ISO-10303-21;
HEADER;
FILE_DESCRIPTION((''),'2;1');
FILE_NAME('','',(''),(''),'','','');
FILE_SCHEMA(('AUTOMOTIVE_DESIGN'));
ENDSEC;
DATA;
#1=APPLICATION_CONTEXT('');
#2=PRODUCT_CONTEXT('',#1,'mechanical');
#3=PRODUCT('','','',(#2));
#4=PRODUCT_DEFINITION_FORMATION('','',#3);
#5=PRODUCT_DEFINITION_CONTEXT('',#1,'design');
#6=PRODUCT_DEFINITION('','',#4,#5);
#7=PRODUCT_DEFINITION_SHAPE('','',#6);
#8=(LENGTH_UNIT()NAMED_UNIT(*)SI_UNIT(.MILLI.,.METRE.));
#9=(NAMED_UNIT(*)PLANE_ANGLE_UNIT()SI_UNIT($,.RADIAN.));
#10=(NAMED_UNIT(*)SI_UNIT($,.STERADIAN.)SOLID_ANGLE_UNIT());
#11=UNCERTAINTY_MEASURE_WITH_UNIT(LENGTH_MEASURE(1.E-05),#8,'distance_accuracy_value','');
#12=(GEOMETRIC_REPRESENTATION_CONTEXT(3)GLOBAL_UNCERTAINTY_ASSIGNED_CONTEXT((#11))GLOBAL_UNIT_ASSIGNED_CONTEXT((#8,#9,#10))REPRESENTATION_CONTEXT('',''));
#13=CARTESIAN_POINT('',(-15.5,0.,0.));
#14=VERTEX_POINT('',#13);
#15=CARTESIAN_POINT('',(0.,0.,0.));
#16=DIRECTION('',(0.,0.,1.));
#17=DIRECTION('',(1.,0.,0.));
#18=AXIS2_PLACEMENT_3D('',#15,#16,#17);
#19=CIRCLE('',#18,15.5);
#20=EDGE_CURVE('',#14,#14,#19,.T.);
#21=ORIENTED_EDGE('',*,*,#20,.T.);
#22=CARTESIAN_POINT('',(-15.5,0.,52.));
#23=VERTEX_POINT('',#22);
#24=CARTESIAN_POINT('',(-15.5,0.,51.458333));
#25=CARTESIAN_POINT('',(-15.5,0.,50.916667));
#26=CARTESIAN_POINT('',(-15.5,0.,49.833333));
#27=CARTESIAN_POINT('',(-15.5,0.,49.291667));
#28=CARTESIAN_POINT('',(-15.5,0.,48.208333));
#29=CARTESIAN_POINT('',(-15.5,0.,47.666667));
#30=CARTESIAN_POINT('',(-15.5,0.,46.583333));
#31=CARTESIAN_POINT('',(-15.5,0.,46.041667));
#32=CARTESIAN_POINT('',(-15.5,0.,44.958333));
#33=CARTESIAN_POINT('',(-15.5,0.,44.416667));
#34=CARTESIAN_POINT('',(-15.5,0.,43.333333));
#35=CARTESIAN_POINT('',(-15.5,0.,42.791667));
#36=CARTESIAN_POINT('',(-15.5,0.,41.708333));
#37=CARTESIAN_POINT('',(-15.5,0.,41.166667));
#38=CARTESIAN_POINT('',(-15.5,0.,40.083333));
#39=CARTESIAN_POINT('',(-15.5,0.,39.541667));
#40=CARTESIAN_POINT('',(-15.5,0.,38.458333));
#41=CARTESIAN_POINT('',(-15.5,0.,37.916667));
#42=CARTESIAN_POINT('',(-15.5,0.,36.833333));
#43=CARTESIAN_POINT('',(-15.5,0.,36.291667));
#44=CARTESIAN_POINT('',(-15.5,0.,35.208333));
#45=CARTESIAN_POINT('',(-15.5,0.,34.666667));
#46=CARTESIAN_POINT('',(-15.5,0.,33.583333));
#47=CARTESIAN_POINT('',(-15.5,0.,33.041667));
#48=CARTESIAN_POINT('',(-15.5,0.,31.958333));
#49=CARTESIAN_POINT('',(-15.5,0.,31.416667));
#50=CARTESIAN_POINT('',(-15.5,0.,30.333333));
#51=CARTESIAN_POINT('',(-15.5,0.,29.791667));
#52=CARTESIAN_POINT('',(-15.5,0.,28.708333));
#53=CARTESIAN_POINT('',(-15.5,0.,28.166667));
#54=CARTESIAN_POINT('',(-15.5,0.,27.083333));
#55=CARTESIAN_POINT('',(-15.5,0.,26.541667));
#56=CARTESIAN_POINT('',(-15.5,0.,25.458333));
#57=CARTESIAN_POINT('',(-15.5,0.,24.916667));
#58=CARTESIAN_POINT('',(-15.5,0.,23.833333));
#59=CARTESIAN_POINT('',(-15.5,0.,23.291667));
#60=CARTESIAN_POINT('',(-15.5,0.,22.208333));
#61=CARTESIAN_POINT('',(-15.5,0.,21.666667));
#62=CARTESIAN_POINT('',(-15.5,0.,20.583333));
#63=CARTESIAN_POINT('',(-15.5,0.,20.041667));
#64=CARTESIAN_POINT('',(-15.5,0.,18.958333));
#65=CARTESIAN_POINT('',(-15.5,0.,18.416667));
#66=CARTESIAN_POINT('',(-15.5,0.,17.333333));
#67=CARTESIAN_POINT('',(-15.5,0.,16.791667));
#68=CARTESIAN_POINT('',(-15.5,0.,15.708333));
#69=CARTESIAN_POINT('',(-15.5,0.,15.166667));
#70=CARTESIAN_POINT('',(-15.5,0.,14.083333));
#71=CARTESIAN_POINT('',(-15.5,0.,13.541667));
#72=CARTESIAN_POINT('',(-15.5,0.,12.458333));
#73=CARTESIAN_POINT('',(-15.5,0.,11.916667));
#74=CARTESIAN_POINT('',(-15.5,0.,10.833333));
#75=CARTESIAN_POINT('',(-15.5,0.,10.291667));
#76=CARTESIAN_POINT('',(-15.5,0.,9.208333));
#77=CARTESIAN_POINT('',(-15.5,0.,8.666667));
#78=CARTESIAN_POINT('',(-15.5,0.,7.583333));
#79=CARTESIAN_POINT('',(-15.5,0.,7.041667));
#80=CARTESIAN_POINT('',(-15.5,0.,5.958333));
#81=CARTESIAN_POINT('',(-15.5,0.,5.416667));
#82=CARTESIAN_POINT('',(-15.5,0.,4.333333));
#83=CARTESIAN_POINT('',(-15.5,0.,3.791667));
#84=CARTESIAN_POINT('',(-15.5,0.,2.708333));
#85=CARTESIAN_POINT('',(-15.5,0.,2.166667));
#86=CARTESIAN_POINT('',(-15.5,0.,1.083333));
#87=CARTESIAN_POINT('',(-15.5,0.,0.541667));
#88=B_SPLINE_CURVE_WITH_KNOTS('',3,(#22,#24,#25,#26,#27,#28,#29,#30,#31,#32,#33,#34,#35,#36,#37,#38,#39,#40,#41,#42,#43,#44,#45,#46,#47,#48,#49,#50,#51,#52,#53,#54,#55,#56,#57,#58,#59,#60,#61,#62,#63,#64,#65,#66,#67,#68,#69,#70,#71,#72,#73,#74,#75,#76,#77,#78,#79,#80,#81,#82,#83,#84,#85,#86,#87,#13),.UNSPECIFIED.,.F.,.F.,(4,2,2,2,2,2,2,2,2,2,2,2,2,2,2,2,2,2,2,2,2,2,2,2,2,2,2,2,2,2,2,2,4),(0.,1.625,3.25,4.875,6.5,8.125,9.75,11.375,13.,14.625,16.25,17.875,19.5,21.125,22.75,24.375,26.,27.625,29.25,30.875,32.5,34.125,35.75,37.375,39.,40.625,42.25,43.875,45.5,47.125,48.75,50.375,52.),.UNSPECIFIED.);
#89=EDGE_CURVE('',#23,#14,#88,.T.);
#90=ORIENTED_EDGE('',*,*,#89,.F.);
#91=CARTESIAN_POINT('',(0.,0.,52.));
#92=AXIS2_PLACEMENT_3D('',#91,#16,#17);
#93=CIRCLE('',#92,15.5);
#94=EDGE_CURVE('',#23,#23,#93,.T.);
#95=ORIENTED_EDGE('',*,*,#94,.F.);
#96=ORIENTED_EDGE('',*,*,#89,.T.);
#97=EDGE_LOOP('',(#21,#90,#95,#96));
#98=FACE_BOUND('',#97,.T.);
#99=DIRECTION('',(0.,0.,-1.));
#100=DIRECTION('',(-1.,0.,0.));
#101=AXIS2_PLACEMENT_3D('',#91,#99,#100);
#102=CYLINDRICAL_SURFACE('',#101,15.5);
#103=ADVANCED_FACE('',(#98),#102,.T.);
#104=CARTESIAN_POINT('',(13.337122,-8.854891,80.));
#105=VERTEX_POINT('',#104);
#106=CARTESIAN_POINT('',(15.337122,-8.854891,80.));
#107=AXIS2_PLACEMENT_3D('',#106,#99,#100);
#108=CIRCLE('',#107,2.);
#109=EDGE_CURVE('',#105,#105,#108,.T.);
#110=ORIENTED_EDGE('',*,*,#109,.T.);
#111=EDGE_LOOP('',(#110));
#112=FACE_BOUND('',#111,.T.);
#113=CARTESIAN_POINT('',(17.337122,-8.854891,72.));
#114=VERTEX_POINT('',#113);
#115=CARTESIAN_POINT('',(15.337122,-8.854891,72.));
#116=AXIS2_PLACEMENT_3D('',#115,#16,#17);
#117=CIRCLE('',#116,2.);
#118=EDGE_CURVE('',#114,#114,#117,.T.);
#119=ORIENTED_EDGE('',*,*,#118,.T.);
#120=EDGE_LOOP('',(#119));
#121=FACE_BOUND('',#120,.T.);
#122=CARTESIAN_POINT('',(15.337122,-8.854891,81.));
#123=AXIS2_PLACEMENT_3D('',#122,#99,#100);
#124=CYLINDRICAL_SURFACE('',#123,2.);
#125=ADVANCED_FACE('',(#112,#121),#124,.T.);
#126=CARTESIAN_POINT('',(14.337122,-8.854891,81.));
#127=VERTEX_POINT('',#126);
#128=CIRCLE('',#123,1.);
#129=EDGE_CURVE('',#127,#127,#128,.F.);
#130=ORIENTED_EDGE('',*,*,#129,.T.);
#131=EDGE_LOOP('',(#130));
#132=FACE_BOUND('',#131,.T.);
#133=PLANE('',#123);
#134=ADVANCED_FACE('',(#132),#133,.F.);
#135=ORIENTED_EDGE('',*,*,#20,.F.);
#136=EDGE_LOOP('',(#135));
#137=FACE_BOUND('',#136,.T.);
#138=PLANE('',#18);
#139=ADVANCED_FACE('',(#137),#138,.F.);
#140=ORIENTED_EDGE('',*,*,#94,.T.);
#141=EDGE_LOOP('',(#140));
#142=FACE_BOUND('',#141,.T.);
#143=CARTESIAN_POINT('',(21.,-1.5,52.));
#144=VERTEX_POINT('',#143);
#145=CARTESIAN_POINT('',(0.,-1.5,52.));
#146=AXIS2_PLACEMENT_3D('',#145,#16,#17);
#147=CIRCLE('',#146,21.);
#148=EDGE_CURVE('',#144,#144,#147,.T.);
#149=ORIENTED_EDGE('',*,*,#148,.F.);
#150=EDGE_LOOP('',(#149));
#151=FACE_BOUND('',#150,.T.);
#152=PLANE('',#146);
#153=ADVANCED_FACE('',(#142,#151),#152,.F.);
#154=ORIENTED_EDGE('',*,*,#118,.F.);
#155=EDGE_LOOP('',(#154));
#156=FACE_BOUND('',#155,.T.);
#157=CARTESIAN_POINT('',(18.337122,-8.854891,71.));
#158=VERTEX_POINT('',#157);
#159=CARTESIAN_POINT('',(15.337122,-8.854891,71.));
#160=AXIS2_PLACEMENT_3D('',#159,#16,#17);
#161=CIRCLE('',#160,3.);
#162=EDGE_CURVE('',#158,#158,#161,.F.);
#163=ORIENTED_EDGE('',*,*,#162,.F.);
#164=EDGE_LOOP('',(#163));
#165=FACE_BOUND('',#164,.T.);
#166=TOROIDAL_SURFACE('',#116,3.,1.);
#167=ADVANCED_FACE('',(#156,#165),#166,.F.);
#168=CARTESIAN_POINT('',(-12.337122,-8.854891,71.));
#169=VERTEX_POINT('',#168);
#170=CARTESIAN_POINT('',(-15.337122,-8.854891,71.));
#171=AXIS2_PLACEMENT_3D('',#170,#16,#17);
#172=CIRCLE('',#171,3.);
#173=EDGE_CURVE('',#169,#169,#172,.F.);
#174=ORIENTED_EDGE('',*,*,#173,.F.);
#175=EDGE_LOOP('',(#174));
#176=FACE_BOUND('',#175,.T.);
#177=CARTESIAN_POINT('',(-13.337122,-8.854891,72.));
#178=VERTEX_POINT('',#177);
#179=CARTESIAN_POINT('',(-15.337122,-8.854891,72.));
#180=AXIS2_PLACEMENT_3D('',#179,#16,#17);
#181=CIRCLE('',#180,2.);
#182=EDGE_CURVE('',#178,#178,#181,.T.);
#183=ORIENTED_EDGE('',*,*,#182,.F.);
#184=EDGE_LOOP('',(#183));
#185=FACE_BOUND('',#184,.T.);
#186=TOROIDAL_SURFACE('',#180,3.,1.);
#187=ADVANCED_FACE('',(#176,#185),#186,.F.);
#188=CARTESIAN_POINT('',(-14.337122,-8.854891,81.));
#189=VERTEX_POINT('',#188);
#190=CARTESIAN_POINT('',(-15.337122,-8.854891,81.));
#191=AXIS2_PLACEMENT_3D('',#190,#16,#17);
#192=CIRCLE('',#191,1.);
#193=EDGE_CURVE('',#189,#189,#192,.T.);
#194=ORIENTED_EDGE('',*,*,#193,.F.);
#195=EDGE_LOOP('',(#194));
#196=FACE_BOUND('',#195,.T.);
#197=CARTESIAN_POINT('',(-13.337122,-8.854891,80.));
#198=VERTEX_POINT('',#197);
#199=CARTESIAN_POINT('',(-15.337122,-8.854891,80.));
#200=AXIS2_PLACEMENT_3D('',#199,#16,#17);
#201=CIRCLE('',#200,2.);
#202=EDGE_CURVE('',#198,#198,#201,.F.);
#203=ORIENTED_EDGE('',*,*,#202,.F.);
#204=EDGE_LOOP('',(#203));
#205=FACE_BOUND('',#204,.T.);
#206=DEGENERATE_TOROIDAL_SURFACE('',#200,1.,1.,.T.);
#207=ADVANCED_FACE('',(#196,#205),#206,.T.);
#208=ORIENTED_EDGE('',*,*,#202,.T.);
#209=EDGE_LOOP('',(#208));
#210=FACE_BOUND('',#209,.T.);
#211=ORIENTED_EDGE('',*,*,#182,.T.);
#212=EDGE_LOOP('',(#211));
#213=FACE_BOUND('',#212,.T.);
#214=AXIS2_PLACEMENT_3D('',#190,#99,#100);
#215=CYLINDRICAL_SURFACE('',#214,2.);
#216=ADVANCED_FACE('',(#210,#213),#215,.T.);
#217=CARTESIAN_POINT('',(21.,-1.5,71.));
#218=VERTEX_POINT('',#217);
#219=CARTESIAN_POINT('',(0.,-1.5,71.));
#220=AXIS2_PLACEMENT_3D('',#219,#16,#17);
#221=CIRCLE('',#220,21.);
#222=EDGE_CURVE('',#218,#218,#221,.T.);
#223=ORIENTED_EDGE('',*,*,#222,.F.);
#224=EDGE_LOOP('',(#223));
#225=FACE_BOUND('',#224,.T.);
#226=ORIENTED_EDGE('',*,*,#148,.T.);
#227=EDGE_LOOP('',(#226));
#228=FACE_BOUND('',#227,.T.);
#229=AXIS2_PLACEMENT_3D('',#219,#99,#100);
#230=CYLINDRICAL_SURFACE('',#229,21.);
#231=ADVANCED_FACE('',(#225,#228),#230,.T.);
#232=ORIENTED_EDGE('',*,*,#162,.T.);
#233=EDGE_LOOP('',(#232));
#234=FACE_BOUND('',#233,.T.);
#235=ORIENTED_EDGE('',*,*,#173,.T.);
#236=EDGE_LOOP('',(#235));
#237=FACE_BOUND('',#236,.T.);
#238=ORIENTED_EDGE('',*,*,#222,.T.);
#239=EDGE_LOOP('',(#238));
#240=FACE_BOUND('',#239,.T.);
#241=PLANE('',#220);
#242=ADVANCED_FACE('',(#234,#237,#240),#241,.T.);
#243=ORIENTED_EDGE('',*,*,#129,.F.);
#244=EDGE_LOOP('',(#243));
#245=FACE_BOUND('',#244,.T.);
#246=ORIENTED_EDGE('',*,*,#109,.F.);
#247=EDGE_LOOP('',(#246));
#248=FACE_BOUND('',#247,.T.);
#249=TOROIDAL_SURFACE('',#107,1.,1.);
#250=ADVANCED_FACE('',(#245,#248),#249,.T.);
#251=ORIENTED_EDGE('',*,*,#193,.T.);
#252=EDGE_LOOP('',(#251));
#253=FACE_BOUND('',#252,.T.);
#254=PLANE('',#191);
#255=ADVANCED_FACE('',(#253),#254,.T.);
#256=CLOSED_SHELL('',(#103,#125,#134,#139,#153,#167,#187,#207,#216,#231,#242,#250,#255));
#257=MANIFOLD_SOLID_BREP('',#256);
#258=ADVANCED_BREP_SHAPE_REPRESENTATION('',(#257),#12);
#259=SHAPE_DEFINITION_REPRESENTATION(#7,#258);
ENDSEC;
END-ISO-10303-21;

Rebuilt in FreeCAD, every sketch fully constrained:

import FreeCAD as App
import Part
import Sketcher
from FreeCAD import Vector
Q = App.Units.Quantity


def edges_at(feature, points):
    """Names of the edges that pass closest to the given points."""
    edges = feature.Shape.Edges
    near = lambda p: min(range(len(edges)), key=lambda i: edges[i].distToShape(Part.Vertex(*p))[0])
    return sorted({f"Edge{near(p) + 1}" for p in points})

doc = App.newDocument("Part")
body = doc.addObject("PartDesign::Body", "Body")

# Sketch on XY plane
sketch1 = body.newObject("Sketcher::SketchObject", "Sketch")
sketch1.AttachmentSupport = (doc.getObject("XY_Plane"), [""])
sketch1.MapMode = "FlatFace"
sketch1.addGeometry(Part.Circle(Vector(0, 0, 0), Vector(0, 0, 1), 16), False)
sketch1.addConstraint([
    Sketcher.Constraint("Coincident", 0, 3, -1, 1),
    Sketcher.Constraint("Diameter", 0, Q("31 mm")),
])
pad1 = body.newObject("PartDesign::Pad", "Pad")
pad1.Profile = sketch1
pad1.Length = 52

# Sketch on XY plane
sketch2 = body.newObject("Sketcher::SketchObject", "Sketch001")
sketch2.AttachmentSupport = (doc.getObject("XY_Plane"), [""])
sketch2.MapMode = "FlatFace"
sketch2.AttachmentOffset = App.Placement(Vector(0, 0, 52), App.Rotation())
sketch2.addGeometry(Part.Circle(Vector(0, -2, 0), Vector(0, 0, 1), 21), False)
sketch2.addConstraint([
    Sketcher.Constraint("PointOnObject", 0, 3, -2),
    Sketcher.Constraint("Diameter", 0, Q("42 mm")),
    Sketcher.Constraint("DistanceY", 0, 3, -1, 1, Q("1.5 mm")),
])
pad2 = body.newObject("PartDesign::Pad", "Pad001")
pad2.Profile = sketch2
pad2.Length = 19

# Sketch on XY plane
sketch3 = body.newObject("Sketcher::SketchObject", "Sketch002")
sketch3.AttachmentSupport = (doc.getObject("XY_Plane"), [""])
sketch3.MapMode = "FlatFace"
sketch3.AttachmentOffset = App.Placement(Vector(0, 0, 71), App.Rotation())
sketch3.addGeometry([
    Part.Circle(Vector(-15.3, -8.9, 0), Vector(0, 0, 1), 2),
    Part.Circle(Vector(15.3, -8.9, 0), Vector(0, 0, 1), 2),
], False)
sketch3.addConstraint([
    Sketcher.Constraint("Equal", 0, 1),
    Sketcher.Constraint("Symmetric", 0, 3, 1, 3, -2),
    Sketcher.Constraint("Diameter", 0, Q("4 mm")),
    Sketcher.Constraint("DistanceX", 0, 3, -1, 1, Q("15.337122 mm")),
    Sketcher.Constraint("DistanceY", 0, 3, -1, 1, Q("8.854891 mm")),
])
pad3 = body.newObject("PartDesign::Pad", "Pad002")
pad3.Profile = sketch3
pad3.Length = 10
doc.recompute()

fillet = body.newObject("PartDesign::Fillet", "Fillet")
fillet.Base = (pad3, edges_at(pad3, [
    (-17.337, -8.855, 71),
    (-17.337, -8.855, 81),
    (17.337, -8.855, 71),
    (17.337, -8.855, 81),
]))
fillet.Radius = 1

doc.recompute()
